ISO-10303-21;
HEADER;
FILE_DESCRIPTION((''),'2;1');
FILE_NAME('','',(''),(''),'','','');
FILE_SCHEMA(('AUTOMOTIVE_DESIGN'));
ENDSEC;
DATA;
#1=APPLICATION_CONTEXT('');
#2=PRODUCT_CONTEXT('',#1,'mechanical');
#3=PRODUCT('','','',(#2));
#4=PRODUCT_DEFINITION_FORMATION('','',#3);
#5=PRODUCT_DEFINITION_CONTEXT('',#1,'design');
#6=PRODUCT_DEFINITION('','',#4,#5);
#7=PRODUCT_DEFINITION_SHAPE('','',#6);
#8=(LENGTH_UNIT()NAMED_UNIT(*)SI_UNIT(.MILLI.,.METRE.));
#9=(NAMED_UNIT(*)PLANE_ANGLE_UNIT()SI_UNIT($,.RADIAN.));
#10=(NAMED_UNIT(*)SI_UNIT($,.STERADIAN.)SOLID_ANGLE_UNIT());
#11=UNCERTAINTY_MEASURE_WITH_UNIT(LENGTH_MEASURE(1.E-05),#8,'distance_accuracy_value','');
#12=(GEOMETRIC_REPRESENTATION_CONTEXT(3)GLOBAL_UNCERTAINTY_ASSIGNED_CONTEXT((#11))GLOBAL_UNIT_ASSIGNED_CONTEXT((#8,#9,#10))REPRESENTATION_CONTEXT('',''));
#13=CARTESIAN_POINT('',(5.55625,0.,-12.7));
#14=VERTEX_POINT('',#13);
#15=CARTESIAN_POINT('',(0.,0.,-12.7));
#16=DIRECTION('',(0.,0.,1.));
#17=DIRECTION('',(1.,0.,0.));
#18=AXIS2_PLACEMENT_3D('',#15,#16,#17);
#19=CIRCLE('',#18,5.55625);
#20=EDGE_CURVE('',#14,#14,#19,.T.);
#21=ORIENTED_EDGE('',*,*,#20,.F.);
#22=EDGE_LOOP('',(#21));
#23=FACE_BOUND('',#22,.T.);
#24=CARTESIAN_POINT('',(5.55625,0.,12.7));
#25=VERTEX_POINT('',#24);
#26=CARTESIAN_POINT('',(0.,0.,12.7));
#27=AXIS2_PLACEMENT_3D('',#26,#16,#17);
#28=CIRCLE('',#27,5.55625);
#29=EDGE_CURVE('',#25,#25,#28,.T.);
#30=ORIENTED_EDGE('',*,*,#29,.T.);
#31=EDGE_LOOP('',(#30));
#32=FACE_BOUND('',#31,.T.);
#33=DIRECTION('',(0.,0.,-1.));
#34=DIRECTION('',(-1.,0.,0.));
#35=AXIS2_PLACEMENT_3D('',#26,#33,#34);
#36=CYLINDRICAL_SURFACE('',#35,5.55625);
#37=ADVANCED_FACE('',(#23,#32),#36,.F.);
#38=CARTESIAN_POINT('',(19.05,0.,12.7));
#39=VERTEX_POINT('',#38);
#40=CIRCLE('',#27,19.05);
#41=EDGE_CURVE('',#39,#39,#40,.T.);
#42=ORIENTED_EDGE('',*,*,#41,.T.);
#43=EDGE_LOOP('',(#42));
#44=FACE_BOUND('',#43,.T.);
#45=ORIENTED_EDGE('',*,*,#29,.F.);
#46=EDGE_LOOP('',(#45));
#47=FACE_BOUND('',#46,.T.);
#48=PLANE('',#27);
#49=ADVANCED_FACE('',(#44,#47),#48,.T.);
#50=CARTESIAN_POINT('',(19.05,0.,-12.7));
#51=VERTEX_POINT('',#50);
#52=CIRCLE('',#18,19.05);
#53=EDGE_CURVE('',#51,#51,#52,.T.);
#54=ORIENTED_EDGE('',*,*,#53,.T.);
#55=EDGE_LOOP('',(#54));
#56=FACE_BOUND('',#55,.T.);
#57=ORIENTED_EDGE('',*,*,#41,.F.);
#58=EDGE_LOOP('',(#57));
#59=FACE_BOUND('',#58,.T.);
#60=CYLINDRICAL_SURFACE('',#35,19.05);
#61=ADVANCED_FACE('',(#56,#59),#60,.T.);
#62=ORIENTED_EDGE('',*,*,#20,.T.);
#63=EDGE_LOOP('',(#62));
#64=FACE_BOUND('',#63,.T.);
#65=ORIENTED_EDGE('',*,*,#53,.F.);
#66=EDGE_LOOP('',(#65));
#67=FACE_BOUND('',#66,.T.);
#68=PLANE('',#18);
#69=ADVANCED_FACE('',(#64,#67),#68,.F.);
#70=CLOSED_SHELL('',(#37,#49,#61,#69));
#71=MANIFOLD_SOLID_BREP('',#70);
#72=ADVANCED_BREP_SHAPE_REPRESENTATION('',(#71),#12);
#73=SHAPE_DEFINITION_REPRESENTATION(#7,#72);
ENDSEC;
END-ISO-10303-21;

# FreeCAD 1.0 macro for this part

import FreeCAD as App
import Part
import Sketcher

V = App.Vector
Q = App.Units.Quantity

doc = App.newDocument("Part")
body = doc.addObject("PartDesign::Body", "Body")

# Sketch on XY plane
sketch1 = doc.addObject("Sketcher::SketchObject", "Sketch")
body.addObject(sketch1)
sketch1.AttachmentSupport = (doc.XY_Plane, [""])
sketch1.MapMode = "FlatFace"
sketch1.addGeometry([
    Part.Circle(V(0, 0, 0), V(0, 0, 1), 19.05),
    Part.Circle(V(0, 0, 0), V(0, 0, 1), 5.55625),
], False)
sketch1.addConstraint([
    Sketcher.Constraint("Coincident", 0, 3, -1, 1),
    Sketcher.Constraint("Coincident", 1, 3, -1, 1),
    Sketcher.Constraint("Diameter", 0, Q("1.5 in")),
    Sketcher.Constraint("Diameter", 1, Q("0.4375 in")),
])
pad1 = doc.addObject("PartDesign::Pad", "Pad")
body.addObject(pad1)
pad1.Profile = sketch1
pad1.Length = Q("1 in")
pad1.Midplane = True

doc.recompute()
